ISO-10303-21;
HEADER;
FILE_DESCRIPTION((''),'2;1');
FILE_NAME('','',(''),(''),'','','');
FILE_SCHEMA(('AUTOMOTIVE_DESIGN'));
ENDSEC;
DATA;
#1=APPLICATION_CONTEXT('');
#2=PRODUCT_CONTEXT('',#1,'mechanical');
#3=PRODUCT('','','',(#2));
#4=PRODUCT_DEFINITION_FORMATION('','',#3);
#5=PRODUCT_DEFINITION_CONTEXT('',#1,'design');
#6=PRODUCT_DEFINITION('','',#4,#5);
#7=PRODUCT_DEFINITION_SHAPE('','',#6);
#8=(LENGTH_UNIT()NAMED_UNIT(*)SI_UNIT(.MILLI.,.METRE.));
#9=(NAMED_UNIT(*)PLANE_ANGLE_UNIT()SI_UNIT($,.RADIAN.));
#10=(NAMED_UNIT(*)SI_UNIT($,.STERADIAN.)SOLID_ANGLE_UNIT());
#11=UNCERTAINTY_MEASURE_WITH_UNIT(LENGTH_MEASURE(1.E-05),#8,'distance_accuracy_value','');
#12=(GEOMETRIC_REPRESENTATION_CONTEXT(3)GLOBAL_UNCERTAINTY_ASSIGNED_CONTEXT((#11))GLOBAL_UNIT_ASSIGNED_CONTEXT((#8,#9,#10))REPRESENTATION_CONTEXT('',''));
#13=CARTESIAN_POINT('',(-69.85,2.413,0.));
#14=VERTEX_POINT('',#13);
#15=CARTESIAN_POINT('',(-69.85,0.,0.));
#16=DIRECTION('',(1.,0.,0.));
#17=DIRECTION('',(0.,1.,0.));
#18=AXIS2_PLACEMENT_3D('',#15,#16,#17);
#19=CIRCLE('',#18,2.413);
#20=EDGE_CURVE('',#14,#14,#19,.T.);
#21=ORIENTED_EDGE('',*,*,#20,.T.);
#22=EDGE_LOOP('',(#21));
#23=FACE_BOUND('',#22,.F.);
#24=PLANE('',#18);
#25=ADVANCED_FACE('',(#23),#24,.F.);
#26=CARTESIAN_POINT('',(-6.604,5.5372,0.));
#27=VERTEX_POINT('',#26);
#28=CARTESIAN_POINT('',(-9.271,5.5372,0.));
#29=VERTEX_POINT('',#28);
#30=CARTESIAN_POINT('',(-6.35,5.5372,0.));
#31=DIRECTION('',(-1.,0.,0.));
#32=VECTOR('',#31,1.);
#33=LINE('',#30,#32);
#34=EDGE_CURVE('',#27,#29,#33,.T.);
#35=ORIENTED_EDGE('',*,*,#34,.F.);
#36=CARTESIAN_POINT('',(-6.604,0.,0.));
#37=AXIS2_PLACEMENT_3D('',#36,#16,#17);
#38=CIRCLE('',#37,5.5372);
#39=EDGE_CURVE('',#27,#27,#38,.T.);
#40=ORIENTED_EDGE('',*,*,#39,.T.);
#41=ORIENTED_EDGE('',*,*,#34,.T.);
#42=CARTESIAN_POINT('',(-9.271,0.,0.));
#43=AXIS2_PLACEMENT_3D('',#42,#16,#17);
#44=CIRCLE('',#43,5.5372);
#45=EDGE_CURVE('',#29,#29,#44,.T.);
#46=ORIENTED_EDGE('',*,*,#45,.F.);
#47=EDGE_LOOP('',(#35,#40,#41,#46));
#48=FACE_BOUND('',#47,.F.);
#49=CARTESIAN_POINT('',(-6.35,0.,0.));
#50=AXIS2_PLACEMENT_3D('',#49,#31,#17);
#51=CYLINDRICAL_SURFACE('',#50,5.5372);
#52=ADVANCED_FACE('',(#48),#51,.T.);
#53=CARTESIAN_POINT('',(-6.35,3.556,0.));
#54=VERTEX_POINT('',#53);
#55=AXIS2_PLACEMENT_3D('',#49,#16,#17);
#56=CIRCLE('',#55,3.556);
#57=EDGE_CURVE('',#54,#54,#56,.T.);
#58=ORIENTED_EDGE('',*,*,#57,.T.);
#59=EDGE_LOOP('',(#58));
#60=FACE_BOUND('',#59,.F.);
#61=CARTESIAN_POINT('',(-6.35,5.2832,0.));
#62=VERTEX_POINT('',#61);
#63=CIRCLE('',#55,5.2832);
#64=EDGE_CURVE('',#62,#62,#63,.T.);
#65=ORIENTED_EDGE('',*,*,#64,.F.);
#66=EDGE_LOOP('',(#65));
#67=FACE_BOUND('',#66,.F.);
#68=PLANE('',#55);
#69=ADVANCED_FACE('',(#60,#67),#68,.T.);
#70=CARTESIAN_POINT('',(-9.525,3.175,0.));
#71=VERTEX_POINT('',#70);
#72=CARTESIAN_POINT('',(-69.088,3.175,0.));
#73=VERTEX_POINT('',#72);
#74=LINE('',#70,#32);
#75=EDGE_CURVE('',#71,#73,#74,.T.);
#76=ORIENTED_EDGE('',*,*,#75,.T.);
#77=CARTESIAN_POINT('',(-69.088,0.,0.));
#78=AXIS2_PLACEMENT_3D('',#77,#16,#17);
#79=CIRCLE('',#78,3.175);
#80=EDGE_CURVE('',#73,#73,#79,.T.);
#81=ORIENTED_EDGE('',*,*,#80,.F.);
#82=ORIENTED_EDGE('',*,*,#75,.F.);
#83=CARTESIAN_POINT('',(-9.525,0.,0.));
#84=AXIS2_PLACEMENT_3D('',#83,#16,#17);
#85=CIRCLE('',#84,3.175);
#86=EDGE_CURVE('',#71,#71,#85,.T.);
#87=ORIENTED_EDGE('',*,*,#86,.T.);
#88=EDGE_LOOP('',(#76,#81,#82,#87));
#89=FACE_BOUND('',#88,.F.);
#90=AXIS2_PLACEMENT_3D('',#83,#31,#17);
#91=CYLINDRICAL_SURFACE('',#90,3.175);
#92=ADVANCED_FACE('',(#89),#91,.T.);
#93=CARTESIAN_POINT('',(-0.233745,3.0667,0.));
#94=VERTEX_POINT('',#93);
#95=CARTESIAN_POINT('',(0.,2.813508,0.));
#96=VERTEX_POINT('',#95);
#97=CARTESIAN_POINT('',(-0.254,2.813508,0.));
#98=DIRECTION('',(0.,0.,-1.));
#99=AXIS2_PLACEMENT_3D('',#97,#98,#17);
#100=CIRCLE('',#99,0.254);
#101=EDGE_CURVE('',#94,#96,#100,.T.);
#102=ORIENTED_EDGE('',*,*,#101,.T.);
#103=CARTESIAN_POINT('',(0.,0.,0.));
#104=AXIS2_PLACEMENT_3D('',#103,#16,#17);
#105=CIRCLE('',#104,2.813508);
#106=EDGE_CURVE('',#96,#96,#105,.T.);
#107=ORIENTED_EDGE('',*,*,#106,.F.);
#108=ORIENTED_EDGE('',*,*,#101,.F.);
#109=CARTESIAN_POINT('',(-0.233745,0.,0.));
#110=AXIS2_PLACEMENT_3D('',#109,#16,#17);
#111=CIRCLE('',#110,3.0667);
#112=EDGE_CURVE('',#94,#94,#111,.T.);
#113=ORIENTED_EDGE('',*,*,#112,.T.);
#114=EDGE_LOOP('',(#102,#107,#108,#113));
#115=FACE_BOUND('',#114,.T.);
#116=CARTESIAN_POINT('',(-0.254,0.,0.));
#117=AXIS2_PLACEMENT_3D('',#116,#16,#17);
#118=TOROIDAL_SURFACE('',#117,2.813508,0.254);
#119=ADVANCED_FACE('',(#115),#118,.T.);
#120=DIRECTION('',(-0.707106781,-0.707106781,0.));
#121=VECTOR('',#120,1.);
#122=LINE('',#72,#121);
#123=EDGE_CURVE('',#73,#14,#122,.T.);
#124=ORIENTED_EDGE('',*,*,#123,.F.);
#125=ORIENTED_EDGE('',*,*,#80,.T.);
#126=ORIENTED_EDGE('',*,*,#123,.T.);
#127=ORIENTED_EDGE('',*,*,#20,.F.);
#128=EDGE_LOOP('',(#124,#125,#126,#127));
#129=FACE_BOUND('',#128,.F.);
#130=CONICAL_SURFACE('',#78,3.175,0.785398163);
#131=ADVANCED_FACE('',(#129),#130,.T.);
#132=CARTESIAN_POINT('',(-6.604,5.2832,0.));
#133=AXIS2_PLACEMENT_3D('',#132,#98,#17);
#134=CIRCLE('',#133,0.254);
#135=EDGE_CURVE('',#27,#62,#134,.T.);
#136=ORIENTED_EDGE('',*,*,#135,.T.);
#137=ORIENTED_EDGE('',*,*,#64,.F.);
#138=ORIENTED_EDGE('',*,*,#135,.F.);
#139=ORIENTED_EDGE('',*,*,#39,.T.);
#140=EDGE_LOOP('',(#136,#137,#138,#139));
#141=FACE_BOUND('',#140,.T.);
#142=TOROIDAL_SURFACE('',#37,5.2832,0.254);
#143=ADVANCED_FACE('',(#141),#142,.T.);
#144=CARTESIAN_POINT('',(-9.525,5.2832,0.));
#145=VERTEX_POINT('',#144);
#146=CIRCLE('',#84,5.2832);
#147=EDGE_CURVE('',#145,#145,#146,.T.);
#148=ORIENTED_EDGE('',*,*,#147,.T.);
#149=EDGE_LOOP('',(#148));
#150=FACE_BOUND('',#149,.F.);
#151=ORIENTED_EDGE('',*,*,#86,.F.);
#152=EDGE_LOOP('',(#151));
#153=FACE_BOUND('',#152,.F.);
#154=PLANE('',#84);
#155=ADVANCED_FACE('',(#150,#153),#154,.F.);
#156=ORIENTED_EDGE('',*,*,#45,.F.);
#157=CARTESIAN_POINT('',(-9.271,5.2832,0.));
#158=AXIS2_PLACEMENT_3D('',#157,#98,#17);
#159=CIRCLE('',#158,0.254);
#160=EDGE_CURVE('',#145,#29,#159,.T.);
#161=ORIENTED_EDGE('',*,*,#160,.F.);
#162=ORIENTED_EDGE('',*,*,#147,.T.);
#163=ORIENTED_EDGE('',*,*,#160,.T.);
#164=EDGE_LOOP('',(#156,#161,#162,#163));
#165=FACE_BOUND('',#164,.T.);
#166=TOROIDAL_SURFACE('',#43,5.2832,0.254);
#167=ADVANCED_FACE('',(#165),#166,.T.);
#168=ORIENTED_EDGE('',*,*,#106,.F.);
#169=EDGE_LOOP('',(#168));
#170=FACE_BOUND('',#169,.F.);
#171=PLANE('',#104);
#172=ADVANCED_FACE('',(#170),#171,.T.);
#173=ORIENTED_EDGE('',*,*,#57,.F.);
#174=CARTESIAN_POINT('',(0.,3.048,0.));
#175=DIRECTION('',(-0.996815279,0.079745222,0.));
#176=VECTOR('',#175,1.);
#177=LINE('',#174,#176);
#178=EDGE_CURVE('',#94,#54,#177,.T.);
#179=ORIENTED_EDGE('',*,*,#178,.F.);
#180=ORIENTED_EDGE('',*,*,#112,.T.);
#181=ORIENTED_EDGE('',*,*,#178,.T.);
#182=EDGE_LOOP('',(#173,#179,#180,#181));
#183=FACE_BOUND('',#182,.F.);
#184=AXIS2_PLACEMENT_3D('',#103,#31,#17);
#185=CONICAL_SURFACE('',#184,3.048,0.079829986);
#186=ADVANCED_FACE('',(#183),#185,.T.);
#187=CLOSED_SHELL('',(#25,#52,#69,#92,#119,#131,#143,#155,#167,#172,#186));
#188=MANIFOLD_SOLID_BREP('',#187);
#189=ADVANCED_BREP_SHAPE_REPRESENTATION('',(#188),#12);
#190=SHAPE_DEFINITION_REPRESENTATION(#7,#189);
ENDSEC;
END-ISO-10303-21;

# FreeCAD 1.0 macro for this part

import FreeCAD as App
import Part
import Sketcher
Q = App.Units.Quantity


def edges_at(feature, points):
    """Names of the edges that pass closest to the given points."""
    edges = feature.Shape.Edges
    near = lambda p: min(range(len(edges)), key=lambda i: edges[i].distToShape(Part.Vertex(*p))[0])
    return sorted({f"Edge{near(p) + 1}" for p in points})

doc = App.newDocument("Part")
params = doc.addObject("Spreadsheet::Sheet", "Params")
for row, (alias, value) in enumerate([
    ("sketch1_width", "2.75 in"),
    ("sketch1_height", "0.12 in"),
    ("sketch1_width2", "0.125 in"),
    ("sketch1_height2", "0.078 in"),
    ("sketch1_height3", "0.093 in"),
    ("revolution_angle", "360 deg"),
    ("chamfer_size", "0.03 in"),
    ("fillet_radius", "0.01 in"),
], start=1):
    params.set(f"A{row}", alias)
    params.set(f"B{row}", "=" + value)
    params.setAlias(f"B{row}", alias)

body = doc.addObject("PartDesign::Body", "Body")

# Sketch on XY plane
sketch1 = body.newObject("Sketcher::SketchObject", "Sketch")
sketch1.AttachmentSupport = (doc.getObject("XY_Plane"), [""])
sketch1.MapMode = "FlatFace"
sketch1.addGeometry([
    Part.LineSegment(App.Vector(-69.8, 0, 0), App.Vector(0, 0, 0)),  # 0
    Part.LineSegment(App.Vector(0, 0, 0), App.Vector(0, 3, 0)),  # 1
    Part.LineSegment(App.Vector(0, 3, 0), App.Vector(-6.3, 3.6, 0)),  # 2
    Part.LineSegment(App.Vector(-6.3, 3.6, 0), App.Vector(-6.3, 5.5, 0)),  # 3
    Part.LineSegment(App.Vector(-6.3, 5.5, 0), App.Vector(-9.5, 5.5, 0)),  # 4
    Part.LineSegment(App.Vector(-9.5, 5.5, 0), App.Vector(-9.5, 3.2, 0)),  # 5
    Part.LineSegment(App.Vector(-9.5, 3.2, 0), App.Vector(-69.8, 3.2, 0)),  # 6
    Part.LineSegment(App.Vector(-69.8, 3.2, 0), App.Vector(-69.8, 0, 0)),  # 7
], False)
sketch1.addConstraint([
    Sketcher.Constraint("Coincident", 0, 2, 1, 1),
    Sketcher.Constraint("Coincident", 1, 2, 2, 1),
    Sketcher.Constraint("Coincident", 2, 2, 3, 1),
    Sketcher.Constraint("Coincident", 3, 2, 4, 1),
    Sketcher.Constraint("Coincident", 4, 2, 5, 1),
    Sketcher.Constraint("Coincident", 5, 2, 6, 1),
    Sketcher.Constraint("Coincident", 6, 2, 7, 1),
    Sketcher.Constraint("Coincident", 7, 2, 0, 1),
    Sketcher.Constraint("Horizontal", 0),
    Sketcher.Constraint("Vertical", 1),
    Sketcher.Constraint("Vertical", 3),
    Sketcher.Constraint("Horizontal", 4),
    Sketcher.Constraint("Vertical", 5),
    Sketcher.Constraint("Horizontal", 6),
    Sketcher.Constraint("Vertical", 7),
    Sketcher.Constraint("Coincident", 0, 2, -1, 1),
    Sketcher.Constraint("Equal", 4, 7),
    Sketcher.Constraint("DistanceX", 0, 1, 0, 2, Q("2.75 in")),
    Sketcher.Constraint("DistanceY", 1, 1, 1, 2, Q("0.12 in")),
    Sketcher.Constraint("DistanceX", 6, 2, 2, 2, Q("2.5 in")),
    Sketcher.Constraint("DistanceX", 4, 2, 4, 1, Q("0.125 in")),
    Sketcher.Constraint("DistanceY", 3, 1, 3, 2, Q("0.078 in")),
    Sketcher.Constraint("DistanceY", 5, 2, 5, 1, Q("0.093 in")),
])
sketch1.setExpression("Constraints[17]", "Params.sketch1_width")
sketch1.setExpression("Constraints[18]", "Params.sketch1_height")
sketch1.setExpression("Constraints[20]", "Params.sketch1_width2")
sketch1.setExpression("Constraints[21]", "Params.sketch1_height2")
sketch1.setExpression("Constraints[22]", "Params.sketch1_height3")
revolution = body.newObject("PartDesign::Revolution", "Revolution")
revolution.Profile = sketch1
revolution.ReferenceAxis = (sketch1, ["H_Axis"])
revolution.setExpression("Angle", "Params.revolution_angle")
doc.recompute()

chamfer = body.newObject("PartDesign::Chamfer", "Chamfer")
chamfer.Base = (revolution, edges_at(revolution, [(-69.85, -3.175, 0)]))
chamfer.setExpression("Size", "Params.chamfer_size")
doc.recompute()

fillet = body.newObject("PartDesign::Fillet", "Fillet")
fillet.Base = (chamfer, edges_at(chamfer, [(-9.525, -5.537, 0), (-6.35, -5.537, 0), (0, -3.048, 0)]))
fillet.setExpression("Radius", "Params.fillet_radius")

doc.recompute()
